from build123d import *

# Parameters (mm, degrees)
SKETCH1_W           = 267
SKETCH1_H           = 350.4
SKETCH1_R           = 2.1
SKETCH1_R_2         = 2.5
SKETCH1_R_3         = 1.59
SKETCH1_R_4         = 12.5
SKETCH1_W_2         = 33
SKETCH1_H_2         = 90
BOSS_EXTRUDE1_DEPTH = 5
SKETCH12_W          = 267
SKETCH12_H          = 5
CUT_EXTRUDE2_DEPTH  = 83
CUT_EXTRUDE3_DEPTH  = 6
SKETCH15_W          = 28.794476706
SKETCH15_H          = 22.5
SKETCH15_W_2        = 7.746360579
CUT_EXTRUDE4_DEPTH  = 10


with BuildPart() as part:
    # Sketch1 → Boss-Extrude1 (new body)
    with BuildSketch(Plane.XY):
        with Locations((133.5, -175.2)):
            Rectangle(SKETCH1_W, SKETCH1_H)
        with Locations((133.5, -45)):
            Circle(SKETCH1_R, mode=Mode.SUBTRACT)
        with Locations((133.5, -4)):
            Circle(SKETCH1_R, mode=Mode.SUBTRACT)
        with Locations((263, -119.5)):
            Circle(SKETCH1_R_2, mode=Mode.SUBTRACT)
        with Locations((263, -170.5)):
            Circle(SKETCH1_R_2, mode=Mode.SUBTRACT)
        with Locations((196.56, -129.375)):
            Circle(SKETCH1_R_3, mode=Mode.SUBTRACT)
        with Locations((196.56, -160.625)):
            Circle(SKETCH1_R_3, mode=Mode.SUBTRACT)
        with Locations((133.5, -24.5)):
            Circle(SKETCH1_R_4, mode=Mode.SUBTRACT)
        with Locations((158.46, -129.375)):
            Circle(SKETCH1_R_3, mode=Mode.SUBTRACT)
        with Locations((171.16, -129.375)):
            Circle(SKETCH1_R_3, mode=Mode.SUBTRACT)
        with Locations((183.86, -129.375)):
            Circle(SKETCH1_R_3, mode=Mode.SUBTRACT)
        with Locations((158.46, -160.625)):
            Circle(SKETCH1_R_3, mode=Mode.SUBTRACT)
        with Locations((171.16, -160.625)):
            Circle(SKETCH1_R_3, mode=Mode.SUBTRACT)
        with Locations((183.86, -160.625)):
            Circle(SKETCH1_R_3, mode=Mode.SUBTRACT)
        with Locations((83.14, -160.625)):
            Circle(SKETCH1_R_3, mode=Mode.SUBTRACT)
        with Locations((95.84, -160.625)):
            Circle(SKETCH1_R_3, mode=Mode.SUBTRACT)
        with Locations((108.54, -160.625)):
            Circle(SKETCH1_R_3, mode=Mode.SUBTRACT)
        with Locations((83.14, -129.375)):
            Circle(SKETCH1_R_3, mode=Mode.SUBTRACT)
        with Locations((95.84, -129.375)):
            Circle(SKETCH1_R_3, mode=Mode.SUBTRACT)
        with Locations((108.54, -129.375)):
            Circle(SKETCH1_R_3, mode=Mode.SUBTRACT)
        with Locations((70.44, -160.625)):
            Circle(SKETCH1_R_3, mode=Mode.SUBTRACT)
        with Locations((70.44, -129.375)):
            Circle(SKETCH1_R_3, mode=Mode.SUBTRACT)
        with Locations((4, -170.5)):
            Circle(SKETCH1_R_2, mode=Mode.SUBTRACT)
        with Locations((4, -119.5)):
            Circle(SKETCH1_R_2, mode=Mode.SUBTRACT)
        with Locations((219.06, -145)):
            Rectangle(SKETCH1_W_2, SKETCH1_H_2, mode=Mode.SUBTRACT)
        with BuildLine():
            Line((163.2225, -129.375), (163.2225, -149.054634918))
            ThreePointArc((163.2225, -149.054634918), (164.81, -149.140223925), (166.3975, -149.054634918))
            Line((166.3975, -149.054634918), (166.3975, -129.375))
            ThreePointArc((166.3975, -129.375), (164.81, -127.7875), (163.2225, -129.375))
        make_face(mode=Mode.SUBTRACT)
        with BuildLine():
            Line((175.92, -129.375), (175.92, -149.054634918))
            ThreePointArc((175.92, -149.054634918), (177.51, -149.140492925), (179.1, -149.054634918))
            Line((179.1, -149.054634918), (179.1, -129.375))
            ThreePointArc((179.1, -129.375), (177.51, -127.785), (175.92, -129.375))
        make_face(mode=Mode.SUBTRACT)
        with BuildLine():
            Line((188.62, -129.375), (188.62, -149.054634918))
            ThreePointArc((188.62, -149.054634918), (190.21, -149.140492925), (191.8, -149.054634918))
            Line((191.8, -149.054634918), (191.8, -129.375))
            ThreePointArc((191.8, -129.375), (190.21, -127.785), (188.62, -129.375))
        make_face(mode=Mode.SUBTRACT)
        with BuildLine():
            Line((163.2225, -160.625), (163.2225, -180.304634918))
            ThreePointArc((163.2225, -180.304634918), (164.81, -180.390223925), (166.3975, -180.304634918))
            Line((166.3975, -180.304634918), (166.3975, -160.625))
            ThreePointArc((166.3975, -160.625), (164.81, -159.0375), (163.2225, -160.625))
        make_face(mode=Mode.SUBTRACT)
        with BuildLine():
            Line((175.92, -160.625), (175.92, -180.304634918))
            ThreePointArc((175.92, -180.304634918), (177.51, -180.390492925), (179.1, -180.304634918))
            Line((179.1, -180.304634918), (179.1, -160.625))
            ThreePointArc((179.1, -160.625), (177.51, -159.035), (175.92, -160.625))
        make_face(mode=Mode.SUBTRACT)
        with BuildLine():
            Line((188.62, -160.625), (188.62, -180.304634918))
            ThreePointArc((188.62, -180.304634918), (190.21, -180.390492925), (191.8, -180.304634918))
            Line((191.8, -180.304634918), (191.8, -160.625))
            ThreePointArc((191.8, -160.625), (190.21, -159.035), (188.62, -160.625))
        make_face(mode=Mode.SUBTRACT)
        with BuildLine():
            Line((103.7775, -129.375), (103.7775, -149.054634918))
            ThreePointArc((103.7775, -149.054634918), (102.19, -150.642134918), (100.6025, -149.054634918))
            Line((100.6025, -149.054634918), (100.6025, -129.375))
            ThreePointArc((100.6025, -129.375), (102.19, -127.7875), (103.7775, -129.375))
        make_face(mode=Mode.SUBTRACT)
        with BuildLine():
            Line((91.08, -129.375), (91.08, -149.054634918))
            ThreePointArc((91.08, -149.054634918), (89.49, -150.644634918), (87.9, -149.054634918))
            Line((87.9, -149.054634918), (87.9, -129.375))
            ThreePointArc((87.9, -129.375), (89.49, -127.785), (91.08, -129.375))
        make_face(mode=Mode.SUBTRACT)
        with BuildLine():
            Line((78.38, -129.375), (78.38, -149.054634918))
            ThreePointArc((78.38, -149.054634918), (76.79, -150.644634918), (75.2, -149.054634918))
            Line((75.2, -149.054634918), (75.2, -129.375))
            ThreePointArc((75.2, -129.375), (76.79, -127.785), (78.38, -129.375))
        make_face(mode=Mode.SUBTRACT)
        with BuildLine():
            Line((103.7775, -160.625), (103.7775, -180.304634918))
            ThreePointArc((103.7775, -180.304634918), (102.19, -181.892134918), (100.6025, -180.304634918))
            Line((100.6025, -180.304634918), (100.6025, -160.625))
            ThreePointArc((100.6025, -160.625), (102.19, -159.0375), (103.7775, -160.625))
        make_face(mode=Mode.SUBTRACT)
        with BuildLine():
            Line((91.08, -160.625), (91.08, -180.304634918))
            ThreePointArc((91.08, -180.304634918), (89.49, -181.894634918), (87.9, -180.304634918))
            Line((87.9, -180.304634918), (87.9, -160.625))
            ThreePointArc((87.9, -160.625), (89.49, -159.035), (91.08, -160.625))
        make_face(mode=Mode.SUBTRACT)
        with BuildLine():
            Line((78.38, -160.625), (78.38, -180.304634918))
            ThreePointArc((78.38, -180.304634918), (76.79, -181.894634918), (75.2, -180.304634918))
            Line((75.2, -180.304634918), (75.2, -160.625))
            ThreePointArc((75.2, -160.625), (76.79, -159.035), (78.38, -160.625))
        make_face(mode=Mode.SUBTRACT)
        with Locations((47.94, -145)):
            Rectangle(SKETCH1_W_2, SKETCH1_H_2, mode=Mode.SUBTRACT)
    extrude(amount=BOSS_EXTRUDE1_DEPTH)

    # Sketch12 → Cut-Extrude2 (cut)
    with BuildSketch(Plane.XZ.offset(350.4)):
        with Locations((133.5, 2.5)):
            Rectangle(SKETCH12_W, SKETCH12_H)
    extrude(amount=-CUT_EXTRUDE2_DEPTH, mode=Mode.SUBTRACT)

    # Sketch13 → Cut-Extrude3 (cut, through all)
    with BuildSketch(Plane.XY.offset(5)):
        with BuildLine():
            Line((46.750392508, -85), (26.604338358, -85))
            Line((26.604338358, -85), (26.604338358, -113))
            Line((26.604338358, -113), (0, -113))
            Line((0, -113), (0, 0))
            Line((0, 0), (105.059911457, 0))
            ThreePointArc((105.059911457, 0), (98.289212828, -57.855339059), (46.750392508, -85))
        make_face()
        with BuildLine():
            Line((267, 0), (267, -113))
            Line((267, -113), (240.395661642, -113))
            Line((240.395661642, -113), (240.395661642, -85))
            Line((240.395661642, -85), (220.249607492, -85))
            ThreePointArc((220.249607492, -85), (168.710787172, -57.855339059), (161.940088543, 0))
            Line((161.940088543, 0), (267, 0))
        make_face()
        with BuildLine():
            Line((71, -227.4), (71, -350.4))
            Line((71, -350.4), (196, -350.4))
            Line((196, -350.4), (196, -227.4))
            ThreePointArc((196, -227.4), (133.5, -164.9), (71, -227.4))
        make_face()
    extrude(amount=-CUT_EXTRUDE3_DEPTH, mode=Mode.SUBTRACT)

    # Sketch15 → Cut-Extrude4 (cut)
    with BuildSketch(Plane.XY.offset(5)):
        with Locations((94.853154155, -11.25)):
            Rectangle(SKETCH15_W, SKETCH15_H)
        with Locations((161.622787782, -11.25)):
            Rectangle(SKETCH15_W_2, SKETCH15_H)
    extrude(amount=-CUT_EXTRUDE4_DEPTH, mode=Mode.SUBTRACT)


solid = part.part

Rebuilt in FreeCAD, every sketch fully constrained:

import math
import FreeCAD as App
import Part
import Sketcher

V = App.Vector
Q = App.Units.Quantity

doc = App.newDocument("Part")
body = doc.addObject("PartDesign::Body", "Body")

# Sketch on XY plane
sketch1 = body.newObject("Sketcher::SketchObject", "Sketch")
sketch1.AttachmentSupport = (doc.getObject("XY_Plane"), [""])
sketch1.MapMode = "FlatFace"
sketch1.addGeometry([
    Part.LineSegment(V(0, 0, 0), V(0, -350.4, 0)),  # 0
    Part.LineSegment(V(0, -350.4, 0), V(267, -350.4, 0)),  # 1
    Part.LineSegment(V(267, -350.4, 0), V(267, 0, 0)),  # 2
    Part.LineSegment(V(267, 0, 0), V(0, 0, 0)),  # 3
    Part.Circle(V(4, -170.5, 0), V(0, 0, 1), 2.5),  # 4
    Part.LineSegment(V(64.4, -190, 0), V(31.4, -190, 0)),  # 5
    Part.LineSegment(V(31.4, -190, 0), V(31.4, -100, 0)),  # 6
    Part.LineSegment(V(31.4, -100, 0), V(64.4, -100, 0)),  # 7
    Part.LineSegment(V(64.4, -100, 0), V(64.4, -190, 0)),  # 8
    Part.ArcOfCircle(Part.Circle(V(76.8, -160.6, 0), V(0, 0, 1), 1.6), math.radians(0), math.radians(180)),  # 9
    Part.LineSegment(V(78.4, -160.6, 0), V(78.4, -180.3, 0)),  # 10
    Part.ArcOfCircle(Part.Circle(V(76.8, -180.3, 0), V(0, 0, 1), 1.6), math.radians(180), math.radians(360)),  # 11
    Part.LineSegment(V(75.2, -180.3, 0), V(75.2, -160.6, 0)),  # 12
    Part.ArcOfCircle(Part.Circle(V(89.5, -160.6, 0), V(0, 0, 1), 1.6), math.radians(0), math.radians(180)),  # 13
    Part.LineSegment(V(91.1, -160.6, 0), V(91.1, -180.3, 0)),  # 14
    Part.ArcOfCircle(Part.Circle(V(89.5, -180.3, 0), V(0, 0, 1), 1.6), math.radians(180), math.radians(360)),  # 15
    Part.LineSegment(V(87.9, -180.3, 0), V(87.9, -160.6, 0)),  # 16
    Part.ArcOfCircle(Part.Circle(V(102.2, -160.6, 0), V(0, 0, 1), 1.6), math.radians(0), math.radians(180)),  # 17
    Part.LineSegment(V(103.8, -160.6, 0), V(103.8, -180.3, 0)),  # 18
    Part.ArcOfCircle(Part.Circle(V(102.2, -180.3, 0), V(0, 0, 1), 1.6), math.radians(180), math.radians(360)),  # 19
    Part.LineSegment(V(100.6, -180.3, 0), V(100.6, -160.6, 0)),  # 20
    Part.Circle(V(70.4, -160.6, 0), V(0, 0, 1), 1.6),  # 21
    Part.Circle(V(83.1, -160.6, 0), V(0, 0, 1), 1.6),  # 22
    Part.Circle(V(95.8, -160.6, 0), V(0, 0, 1), 1.6),  # 23
    Part.Circle(V(108.5, -160.6, 0), V(0, 0, 1), 1.6),  # 24
    Part.Circle(V(4, -119.5, 0), V(0, 0, 1), 2.5),  # 25
    Part.ArcOfCircle(Part.Circle(V(76.8, -129.4, 0), V(0, 0, 1), 1.6), math.radians(0), math.radians(180)),  # 26
    Part.LineSegment(V(78.4, -129.4, 0), V(78.4, -149.1, 0)),  # 27
    Part.ArcOfCircle(Part.Circle(V(76.8, -149.1, 0), V(0, 0, 1), 1.6), math.radians(180), math.radians(360)),  # 28
    Part.LineSegment(V(75.2, -149.1, 0), V(75.2, -129.4, 0)),  # 29
    Part.ArcOfCircle(Part.Circle(V(89.5, -129.4, 0), V(0, 0, 1), 1.6), math.radians(0), math.radians(180)),  # 30
    Part.LineSegment(V(91.1, -129.4, 0), V(91.1, -149.1, 0)),  # 31
    Part.ArcOfCircle(Part.Circle(V(89.5, -149.1, 0), V(0, 0, 1), 1.6), math.radians(180), math.radians(360)),  # 32
    Part.LineSegment(V(87.9, -149.1, 0), V(87.9, -129.4, 0)),  # 33
    Part.Circle(V(70.4, -129.4, 0), V(0, 0, 1), 1.6),  # 34
    Part.Circle(V(83.1, -129.4, 0), V(0, 0, 1), 1.6),  # 35
    Part.Circle(V(95.8, -129.4, 0), V(0, 0, 1), 1.6),  # 36
    Part.ArcOfCircle(Part.Circle(V(102.2, -129.4, 0), V(0, 0, 1), 1.6), math.radians(0), math.radians(180)),  # 37
    Part.LineSegment(V(103.8, -129.4, 0), V(103.8, -149.1, 0)),  # 38
    Part.ArcOfCircle(Part.Circle(V(102.2, -149.1, 0), V(0, 0, 1), 1.6), math.radians(180), math.radians(360)),  # 39
    Part.LineSegment(V(100.6, -149.1, 0), V(100.6, -129.4, 0)),  # 40
    Part.Circle(V(108.5, -129.4, 0), V(0, 0, 1), 1.6),  # 41
    Part.LineSegment(V(163.2, -180.3, 0), V(163.2, -160.6, 0)),  # 42
    Part.ArcOfCircle(Part.Circle(V(164.8, -160.6, 0), V(0, 0, 1), 1.6), math.radians(0), math.radians(180)),  # 43
    Part.LineSegment(V(166.4, -160.6, 0), V(166.4, -180.3, 0)),  # 44
    Part.ArcOfCircle(Part.Circle(V(164.8, -165.6, 0), V(0, 0, 1), 14.8), math.radians(-96.17), math.radians(-83.83)),  # 45
    Part.LineSegment(V(175.9, -180.3, 0), V(175.9, -160.6, 0)),  # 46
    Part.ArcOfCircle(Part.Circle(V(177.5, -160.6, 0), V(0, 0, 1), 1.6), math.radians(0), math.radians(180)),  # 47
    Part.LineSegment(V(179.1, -160.6, 0), V(179.1, -180.3, 0)),  # 48
    Part.ArcOfCircle(Part.Circle(V(177.5, -165.6, 0), V(0, 0, 1), 14.8), math.radians(-96.18), math.radians(-83.82)),  # 49
    Part.LineSegment(V(188.6, -180.3, 0), V(188.6, -160.6, 0)),  # 50
    Part.ArcOfCircle(Part.Circle(V(190.2, -160.6, 0), V(0, 0, 1), 1.6), math.radians(0), math.radians(180)),  # 51
    Part.LineSegment(V(191.8, -160.6, 0), V(191.8, -180.3, 0)),  # 52
    Part.ArcOfCircle(Part.Circle(V(190.2, -165.6, 0), V(0, 0, 1), 14.8), math.radians(-96.18), math.radians(-83.82)),  # 53
    Part.Circle(V(158.5, -160.6, 0), V(0, 0, 1), 1.6),  # 54
    Part.Circle(V(171.2, -160.6, 0), V(0, 0, 1), 1.6),  # 55
    Part.Circle(V(183.9, -160.6, 0), V(0, 0, 1), 1.6),  # 56
    Part.Circle(V(196.6, -160.6, 0), V(0, 0, 1), 1.6),  # 57
    Part.Circle(V(263, -170.5, 0), V(0, 0, 1), 2.5),  # 58
    Part.LineSegment(V(235.6, -190, 0), V(202.6, -190, 0)),  # 59
    Part.LineSegment(V(202.6, -190, 0), V(202.6, -100, 0)),  # 60
    Part.LineSegment(V(202.6, -100, 0), V(235.6, -100, 0)),  # 61
    Part.LineSegment(V(235.6, -100, 0), V(235.6, -190, 0)),  # 62
    Part.LineSegment(V(163.2, -149.1, 0), V(163.2, -129.4, 0)),  # 63
    Part.ArcOfCircle(Part.Circle(V(164.8, -129.4, 0), V(0, 0, 1), 1.6), math.radians(0), math.radians(180)),  # 64
    Part.LineSegment(V(166.4, -129.4, 0), V(166.4, -149.1, 0)),  # 65
    Part.ArcOfCircle(Part.Circle(V(164.8, -134.4, 0), V(0, 0, 1), 14.8), math.radians(-96.17), math.radians(-83.83)),  # 66
    Part.Circle(V(158.5, -129.4, 0), V(0, 0, 1), 1.6),  # 67
    Part.LineSegment(V(175.9, -149.1, 0), V(175.9, -129.4, 0)),  # 68
    Part.ArcOfCircle(Part.Circle(V(177.5, -129.4, 0), V(0, 0, 1), 1.6), math.radians(0), math.radians(180)),  # 69
    Part.LineSegment(V(179.1, -129.4, 0), V(179.1, -149.1, 0)),  # 70
    Part.ArcOfCircle(Part.Circle(V(177.5, -134.4, 0), V(0, 0, 1), 14.8), math.radians(-96.18), math.radians(-83.82)),  # 71
    Part.LineSegment(V(188.6, -149.1, 0), V(188.6, -129.4, 0)),  # 72
    Part.ArcOfCircle(Part.Circle(V(190.2, -129.4, 0), V(0, 0, 1), 1.6), math.radians(0), math.radians(180)),  # 73
    Part.LineSegment(V(191.8, -129.4, 0), V(191.8, -149.1, 0)),  # 74
    Part.ArcOfCircle(Part.Circle(V(190.2, -134.4, 0), V(0, 0, 1), 14.8), math.radians(-96.18), math.radians(-83.82)),  # 75
    Part.Circle(V(171.2, -129.4, 0), V(0, 0, 1), 1.6),  # 76
    Part.Circle(V(183.9, -129.4, 0), V(0, 0, 1), 1.6),  # 77
    Part.Circle(V(196.6, -129.4, 0), V(0, 0, 1), 1.6),  # 78
    Part.Circle(V(263, -119.5, 0), V(0, 0, 1), 2.5),  # 79
    Part.Circle(V(133.5, -45, 0), V(0, 0, 1), 2.1),  # 80
    Part.Circle(V(133.5, -24.5, 0), V(0, 0, 1), 12.5),  # 81
    Part.Circle(V(133.5, -4, 0), V(0, 0, 1), 2.1),  # 82
], False)
sketch1.addConstraint([
    Sketcher.Constraint("Coincident", 0, 2, 1, 1),
    Sketcher.Constraint("Coincident", 1, 2, 2, 1),
    Sketcher.Constraint("Coincident", 2, 2, 3, 1),
    Sketcher.Constraint("Coincident", 3, 2, 0, 1),
    Sketcher.Constraint("Coincident", 5, 2, 6, 1),
    Sketcher.Constraint("Coincident", 6, 2, 7, 1),
    Sketcher.Constraint("Coincident", 7, 2, 8, 1),
    Sketcher.Constraint("Coincident", 8, 2, 5, 1),
    Sketcher.Constraint("Tangent", 9, 1, 10, 1),
    Sketcher.Constraint("Tangent", 10, 2, 11, 2),
    Sketcher.Constraint("Tangent", 11, 1, 12, 1),
    Sketcher.Constraint("Tangent", 12, 2, 9, 2),
    Sketcher.Constraint("Tangent", 13, 1, 14, 1),
    Sketcher.Constraint("Tangent", 14, 2, 15, 2),
    Sketcher.Constraint("Tangent", 15, 1, 16, 1),
    Sketcher.Constraint("Tangent", 16, 2, 13, 2),
    Sketcher.Constraint("Tangent", 17, 1, 18, 1),
    Sketcher.Constraint("Tangent", 18, 2, 19, 2),
    Sketcher.Constraint("Tangent", 19, 1, 20, 1),
    Sketcher.Constraint("Tangent", 20, 2, 17, 2),
    Sketcher.Constraint("Tangent", 26, 1, 27, 1),
    Sketcher.Constraint("Tangent", 27, 2, 28, 2),
    Sketcher.Constraint("Tangent", 28, 1, 29, 1),
    Sketcher.Constraint("Tangent", 29, 2, 26, 2),
    Sketcher.Constraint("Tangent", 30, 1, 31, 1),
    Sketcher.Constraint("Tangent", 31, 2, 32, 2),
    Sketcher.Constraint("Tangent", 32, 1, 33, 1),
    Sketcher.Constraint("Tangent", 33, 2, 30, 2),
    Sketcher.Constraint("Tangent", 37, 1, 38, 1),
    Sketcher.Constraint("Tangent", 38, 2, 39, 2),
    Sketcher.Constraint("Tangent", 39, 1, 40, 1),
    Sketcher.Constraint("Tangent", 40, 2, 37, 2),
    Sketcher.Constraint("Tangent", 42, 2, 43, 2),
    Sketcher.Constraint("Tangent", 43, 1, 44, 1),
    Sketcher.Constraint("Coincident", 44, 2, 45, 2),
    Sketcher.Constraint("Coincident", 45, 1, 42, 1),
    Sketcher.Constraint("Tangent", 46, 2, 47, 2),
    Sketcher.Constraint("Tangent", 47, 1, 48, 1),
    Sketcher.Constraint("Coincident", 48, 2, 49, 2),
    Sketcher.Constraint("Coincident", 49, 1, 46, 1),
    Sketcher.Constraint("Tangent", 50, 2, 51, 2),
    Sketcher.Constraint("Tangent", 51, 1, 52, 1),
    Sketcher.Constraint("Coincident", 52, 2, 53, 2),
    Sketcher.Constraint("Coincident", 53, 1, 50, 1),
    Sketcher.Constraint("Coincident", 59, 2, 60, 1),
    Sketcher.Constraint("Coincident", 60, 2, 61, 1),
    Sketcher.Constraint("Coincident", 61, 2, 62, 1),
    Sketcher.Constraint("Coincident", 62, 2, 59, 1),
    Sketcher.Constraint("Tangent", 63, 2, 64, 2),
    Sketcher.Constraint("Tangent", 64, 1, 65, 1),
    Sketcher.Constraint("Coincident", 65, 2, 66, 2),
    Sketcher.Constraint("Coincident", 66, 1, 63, 1),
    Sketcher.Constraint("Tangent", 68, 2, 69, 2),
    Sketcher.Constraint("Tangent", 69, 1, 70, 1),
    Sketcher.Constraint("Coincident", 70, 2, 71, 2),
    Sketcher.Constraint("Coincident", 71, 1, 68, 1),
    Sketcher.Constraint("Tangent", 72, 2, 73, 2),
    Sketcher.Constraint("Tangent", 73, 1, 74, 1),
    Sketcher.Constraint("Coincident", 74, 2, 75, 2),
    Sketcher.Constraint("Coincident", 75, 1, 72, 1),
    Sketcher.Constraint("Vertical", 0),
    Sketcher.Constraint("Horizontal", 1),
    Sketcher.Constraint("Vertical", 2),
    Sketcher.Constraint("Horizontal", 3),
    Sketcher.Constraint("Horizontal", 5),
    Sketcher.Constraint("Vertical", 6),
    Sketcher.Constraint("Horizontal", 7),
    Sketcher.Constraint("Vertical", 8),
    Sketcher.Constraint("Vertical", 10),
    Sketcher.Constraint("Vertical", 12),
    Sketcher.Constraint("Vertical", 14),
    Sketcher.Constraint("Vertical", 16),
    Sketcher.Constraint("Vertical", 18),
    Sketcher.Constraint("Vertical", 20),
    Sketcher.Constraint("Vertical", 27),
    Sketcher.Constraint("Vertical", 29),
    Sketcher.Constraint("Vertical", 31),
    Sketcher.Constraint("Vertical", 33),
    Sketcher.Constraint("Vertical", 38),
    Sketcher.Constraint("Vertical", 40),
    Sketcher.Constraint("Vertical", 42),
    Sketcher.Constraint("Vertical", 44),
    Sketcher.Constraint("Vertical", 46),
    Sketcher.Constraint("Vertical", 48),
    Sketcher.Constraint("Vertical", 50),
    Sketcher.Constraint("Vertical", 52),
    Sketcher.Constraint("Horizontal", 59),
    Sketcher.Constraint("Vertical", 60),
    Sketcher.Constraint("Horizontal", 61),
    Sketcher.Constraint("Vertical", 62),
    Sketcher.Constraint("Vertical", 63),
    Sketcher.Constraint("Vertical", 65),
    Sketcher.Constraint("Vertical", 68),
    Sketcher.Constraint("Vertical", 70),
    Sketcher.Constraint("Vertical", 72),
    Sketcher.Constraint("Vertical", 74),
    Sketcher.Constraint("Coincident", 3, 2, -1, 1),
    Sketcher.Constraint("Equal", 11, 13),
    Sketcher.Constraint("Equal", 15, 21),
    Sketcher.Constraint("Equal", 21, 22),
    Sketcher.Constraint("Equal", 22, 23),
    Sketcher.Constraint("Equal", 23, 24),
    Sketcher.Constraint("Equal", 4, 25),
    Sketcher.Constraint("Equal", 24, 26),
    Sketcher.Constraint("Equal", 28, 30),
    Sketcher.Constraint("Equal", 32, 34),
    Sketcher.Constraint("Equal", 34, 35),
    Sketcher.Constraint("Equal", 35, 36),
    Sketcher.Constraint("Equal", 19, 37),
    Sketcher.Constraint("Equal", 36, 41),
    Sketcher.Constraint("Equal", 39, 43),
    Sketcher.Constraint("Equal", 41, 47),
    Sketcher.Constraint("Equal", 47, 51),
    Sketcher.Constraint("Equal", 49, 53),
    Sketcher.Constraint("Equal", 51, 54),
    Sketcher.Constraint("Equal", 54, 55),
    Sketcher.Constraint("Equal", 55, 56),
    Sketcher.Constraint("Equal", 56, 57),
    Sketcher.Constraint("Equal", 25, 58),
    Sketcher.Constraint("Equal", 43, 64),
    Sketcher.Constraint("Equal", 45, 66),
    Sketcher.Constraint("Equal", 57, 67),
    Sketcher.Constraint("Equal", 67, 69),
    Sketcher.Constraint("Equal", 53, 71),
    Sketcher.Constraint("Equal", 69, 73),
    Sketcher.Constraint("Equal", 71, 75),
    Sketcher.Constraint("Equal", 73, 76),
    Sketcher.Constraint("Equal", 76, 77),
    Sketcher.Constraint("Equal", 77, 78),
    Sketcher.Constraint("Equal", 58, 79),
    Sketcher.Constraint("Equal", 80, 82),
    Sketcher.Constraint("Horizontal", 9, 3, 13, 3),
    Sketcher.Constraint("Horizontal", 11, 3, 15, 3),
    Sketcher.Constraint("Horizontal", 13, 3, 17, 3),
    Sketcher.Constraint("Horizontal", 15, 3, 19, 3),
    Sketcher.Constraint("Horizontal", 17, 3, 21, 3),
    Sketcher.Constraint("Horizontal", 21, 3, 22, 3),
    Sketcher.Constraint("Horizontal", 22, 3, 23, 3),
    Sketcher.Constraint("Horizontal", 23, 3, 24, 3),
    Sketcher.Constraint("Horizontal", 26, 3, 30, 3),
    Sketcher.Constraint("Horizontal", 28, 3, 32, 3),
    Sketcher.Constraint("Horizontal", 30, 3, 34, 3),
    Sketcher.Constraint("Horizontal", 34, 3, 35, 3),
    Sketcher.Constraint("Horizontal", 35, 3, 36, 3),
    Sketcher.Constraint("Horizontal", 36, 3, 37, 3),
    Sketcher.Constraint("Horizontal", 32, 3, 39, 3),
    Sketcher.Constraint("Horizontal", 37, 3, 41, 3),
    Sketcher.Constraint("Horizontal", 24, 3, 43, 3),
    Sketcher.Constraint("Horizontal", 43, 3, 47, 3),
    Sketcher.Constraint("Horizontal", 45, 3, 49, 3),
    Sketcher.Constraint("Horizontal", 47, 3, 51, 3),
    Sketcher.Constraint("Horizontal", 49, 3, 53, 3),
    Sketcher.Constraint("Horizontal", 51, 3, 54, 3),
    Sketcher.Constraint("Horizontal", 54, 3, 55, 3),
    Sketcher.Constraint("Horizontal", 55, 3, 56, 3),
    Sketcher.Constraint("Horizontal", 56, 3, 57, 3),
    Sketcher.Constraint("Horizontal", 4, 3, 58, 3),
    Sketcher.Constraint("Horizontal", 41, 3, 64, 3),
    Sketcher.Constraint("Horizontal", 64, 3, 67, 3),
    Sketcher.Constraint("Horizontal", 67, 3, 69, 3),
    Sketcher.Constraint("Horizontal", 66, 3, 71, 3),
    Sketcher.Constraint("Horizontal", 69, 3, 73, 3),
    Sketcher.Constraint("Horizontal", 71, 3, 75, 3),
    Sketcher.Constraint("Horizontal", 73, 3, 76, 3),
    Sketcher.Constraint("Horizontal", 76, 3, 77, 3),
    Sketcher.Constraint("Horizontal", 77, 3, 78, 3),
    Sketcher.Constraint("Horizontal", 25, 3, 79, 3),
    Sketcher.Constraint("Horizontal", 19, 1, 44, 2),
    Sketcher.Constraint("Horizontal", 44, 2, 45, 1),
    Sketcher.Constraint("Horizontal", 45, 1, 48, 2),
    Sketcher.Constraint("Horizontal", 48, 2, 49, 1),
    Sketcher.Constraint("Horizontal", 49, 1, 52, 2),
    Sketcher.Constraint("Horizontal", 8, 2, 59, 2),
    Sketcher.Constraint("Horizontal", 7, 2, 60, 2),
    Sketcher.Constraint("Horizontal", 39, 1, 65, 2),
    Sketcher.Constraint("Horizontal", 65, 2, 66, 1),
    Sketcher.Constraint("Horizontal", 66, 1, 70, 2),
    Sketcher.Constraint("Horizontal", 71, 1, 74, 2),
    Sketcher.Constraint("Vertical", 4, 3, 25, 3),
    Sketcher.Constraint("Vertical", 11, 3, 26, 3),
    Sketcher.Constraint("Vertical", 15, 3, 30, 3),
    Sketcher.Constraint("Vertical", 21, 3, 34, 3),
    Sketcher.Constraint("Vertical", 22, 3, 35, 3),
    Sketcher.Constraint("Vertical", 23, 3, 36, 3),
    Sketcher.Constraint("Vertical", 19, 3, 37, 3),
    Sketcher.Constraint("Vertical", 24, 3, 41, 3),
    Sketcher.Constraint("Vertical", 45, 3, 64, 3),
    Sketcher.Constraint("Vertical", 54, 3, 67, 3),
    Sketcher.Constraint("Vertical", 49, 3, 69, 3),
    Sketcher.Constraint("Vertical", 53, 3, 73, 3),
    Sketcher.Constraint("Vertical", 55, 3, 76, 3),
    Sketcher.Constraint("Vertical", 56, 3, 77, 3),
    Sketcher.Constraint("Vertical", 57, 3, 78, 3),
    Sketcher.Constraint("Vertical", 58, 3, 79, 3),
    Sketcher.Constraint("Vertical", 80, 3, 81, 3),
    Sketcher.Constraint("Vertical", 81, 3, 82, 3),
    Sketcher.Constraint("Equal", 7, 59),
    Sketcher.Constraint("Equal", 20, 27),
    Sketcher.Constraint("Diameter", 4, Q("5 mm")),
    Sketcher.Constraint("Diameter", 81, Q("25 mm")),
    Sketcher.Constraint("Diameter", 80, Q("4.2 mm")),
    Sketcher.Constraint("Diameter", 21, Q("3.18 mm")),
    Sketcher.Constraint("DistanceX", 1, 1, 1, 2, Q("267 mm")),
    Sketcher.Constraint("DistanceX", 5, 2, 5, 1, Q("33 mm")),
    Sketcher.Constraint("DistanceY", 6, 1, 6, 2, Q("90 mm")),
    Sketcher.Constraint("DistanceY", 0, 2, 0, 1, Q("350.4 mm")),
    Sketcher.Constraint("DistanceX", -1, 1, 4, 3, Q("4 mm")),
    Sketcher.Constraint("DistanceX", -1, 1, 58, 3, Q("263 mm")),
    Sketcher.Constraint("DistanceY", 80, 3, -1, 1, Q("45 mm")),
    Sketcher.Constraint("DistanceY", 82, 3, -1, 1, Q("4 mm")),
    Sketcher.Constraint("DistanceY", 5, 2, -1, 1, Q("190 mm")),
    Sketcher.Constraint("DistanceY", 4, 3, -1, 1, Q("170.5 mm")),
    Sketcher.Constraint("DistanceY", 25, 3, -1, 1, Q("119.5 mm")),
    Sketcher.Constraint("DistanceX", -1, 1, 80, 3, Q("133.5 mm")),
    Sketcher.Constraint("DistanceY", 81, 3, -1, 1, Q("24.5 mm")),
    Sketcher.Constraint("DistanceX", -1, 1, 11, 1, Q("75.2 mm")),
    Sketcher.Constraint("DistanceX", -1, 1, 15, 1, Q("87.9 mm")),
    Sketcher.Constraint("DistanceX", -1, 1, 47, 1, Q("179.1 mm")),
    Sketcher.Constraint("DistanceX", -1, 1, 51, 1, Q("191.8 mm")),
    Sketcher.Constraint("Radius", 17, Q("1.5875 mm")),
    Sketcher.Constraint("DistanceX", -1, 1, 17, 3, Q("102.19 mm")),
    Sketcher.Constraint("DistanceX", -1, 1, 21, 3, Q("70.44 mm")),
    Sketcher.Constraint("DistanceX", -1, 1, 22, 3, Q("83.14 mm")),
    Sketcher.Constraint("DistanceX", -1, 1, 23, 3, Q("95.84 mm")),
    Sketcher.Constraint("DistanceX", -1, 1, 24, 3, Q("108.54 mm")),
    Sketcher.Constraint("DistanceX", -1, 1, 43, 3, Q("164.81 mm")),
    Sketcher.Constraint("DistanceX", -1, 1, 54, 3, Q("158.46 mm")),
    Sketcher.Constraint("DistanceX", -1, 1, 55, 3, Q("171.16 mm")),
    Sketcher.Constraint("DistanceX", -1, 1, 56, 3, Q("183.86 mm")),
    Sketcher.Constraint("DistanceX", -1, 1, 57, 3, Q("196.56 mm")),
    Sketcher.Constraint("DistanceX", -1, 1, 5, 2, Q("31.44 mm")),
    Sketcher.Constraint("DistanceX", -1, 1, 59, 2, Q("202.56 mm")),
    Sketcher.Constraint("DistanceY", 9, 3, -1, 1, Q("160.625 mm")),
    Sketcher.Constraint("DistanceY", 26, 3, -1, 1, Q("129.375 mm")),
    Sketcher.Constraint("DistanceY", 45, 3, -1, 1, Q("165.625 mm")),
    Sketcher.Constraint("Radius", 45, Q("14.765224 mm")),
])
pad1 = body.newObject("PartDesign::Pad", "Pad")
pad1.Profile = sketch1
pad1.Length = 5

# Sketch on XZ plane
sketch2 = body.newObject("Sketcher::SketchObject", "Sketch001")
sketch2.AttachmentSupport = (doc.getObject("XZ_Plane"), [""])
sketch2.MapMode = "FlatFace"
sketch2.AttachmentOffset = App.Placement(V(0, 0, 350.4), App.Rotation())
sketch2.addGeometry([
    Part.LineSegment(V(0, 5, 0), V(0, 0, 0)),
    Part.LineSegment(V(0, 0, 0), V(267, 0, 0)),
    Part.LineSegment(V(267, 0, 0), V(267, 5, 0)),
    Part.LineSegment(V(267, 5, 0), V(0, 5, 0)),
], False)
sketch2.addConstraint([
    Sketcher.Constraint("Coincident", 0, 2, 1, 1),
    Sketcher.Constraint("Coincident", 1, 2, 2, 1),
    Sketcher.Constraint("Coincident", 2, 2, 3, 1),
    Sketcher.Constraint("Coincident", 3, 2, 0, 1),
    Sketcher.Constraint("Vertical", 0),
    Sketcher.Constraint("Horizontal", 1),
    Sketcher.Constraint("Vertical", 2),
    Sketcher.Constraint("Horizontal", 3),
    Sketcher.Constraint("Coincident", 0, 2, -1, 1),
    Sketcher.Constraint("DistanceX", 1, 1, 1, 2, Q("267 mm")),
    Sketcher.Constraint("DistanceY", 0, 2, 0, 1, Q("5 mm")),
])
pocket1 = body.newObject("PartDesign::Pocket", "Pocket")
pocket1.Profile = sketch2
pocket1.Length = 83

# Sketch on XY plane
sketch3 = body.newObject("Sketcher::SketchObject", "Sketch002")
sketch3.AttachmentSupport = (doc.getObject("XY_Plane"), [""])
sketch3.MapMode = "FlatFace"
sketch3.AttachmentOffset = App.Placement(V(0, 0, 5), App.Rotation())
sketch3.addGeometry([
    Part.LineSegment(V(27, -85, 0), V(47, -85, 0)),  # 0
    Part.ArcOfCircle(Part.Circle(V(47, -22, 0), V(0, 0, 1), 63), math.radians(-90), math.radians(21)),  # 1
    Part.LineSegment(V(105, 0, 0), V(0, 0, 0)),  # 2
    Part.LineSegment(V(0, 0, 0), V(0, -113, 0)),  # 3
    Part.LineSegment(V(0, -113, 0), V(27, -113, 0)),  # 4
    Part.LineSegment(V(27, -113, 0), V(27, -85, 0)),  # 5
    Part.LineSegment(V(267, -113, 0), V(267, 0, 0)),  # 6
    Part.LineSegment(V(267, 0, 0), V(162, 0, 0)),  # 7
    Part.ArcOfCircle(Part.Circle(V(220, -22, 0), V(0, 0, 1), 63), math.radians(159), math.radians(270)),  # 8
    Part.LineSegment(V(220, -85, 0), V(240, -85, 0)),  # 9
    Part.LineSegment(V(240, -85, 0), V(240, -113, 0)),  # 10
    Part.LineSegment(V(240, -113, 0), V(267, -113, 0)),  # 11
    Part.LineSegment(V(71, -227, 0), V(71, -350, 0)),  # 12
    Part.LineSegment(V(71, -350, 0), V(196, -350, 0)),  # 13
    Part.LineSegment(V(196, -350, 0), V(196, -227, 0)),  # 14
    Part.ArcOfCircle(Part.Circle(V(134, -227, 0), V(0, 0, 1), 62), math.radians(0), math.radians(180)),  # 15
], False)
sketch3.addConstraint([
    Sketcher.Constraint("Tangent", 0, 2, 1, 1),
    Sketcher.Constraint("Coincident", 1, 2, 2, 1),
    Sketcher.Constraint("Coincident", 2, 2, 3, 1),
    Sketcher.Constraint("Coincident", 3, 2, 4, 1),
    Sketcher.Constraint("Coincident", 4, 2, 5, 1),
    Sketcher.Constraint("Coincident", 5, 2, 0, 1),
    Sketcher.Constraint("Coincident", 6, 2, 7, 1),
    Sketcher.Constraint("Coincident", 7, 2, 8, 1),
    Sketcher.Constraint("Tangent", 8, 2, 9, 1),
    Sketcher.Constraint("Coincident", 9, 2, 10, 1),
    Sketcher.Constraint("Coincident", 10, 2, 11, 1),
    Sketcher.Constraint("Coincident", 11, 2, 6, 1),
    Sketcher.Constraint("Coincident", 12, 2, 13, 1),
    Sketcher.Constraint("Coincident", 13, 2, 14, 1),
    Sketcher.Constraint("Tangent", 14, 2, 15, 1),
    Sketcher.Constraint("Tangent", 15, 2, 12, 1),
    Sketcher.Constraint("Horizontal", 0),
    Sketcher.Constraint("Horizontal", 2),
    Sketcher.Constraint("Vertical", 3),
    Sketcher.Constraint("Horizontal", 4),
    Sketcher.Constraint("Vertical", 5),
    Sketcher.Constraint("Vertical", 6),
    Sketcher.Constraint("Horizontal", 7),
    Sketcher.Constraint("Horizontal", 9),
    Sketcher.Constraint("Vertical", 10),
    Sketcher.Constraint("Horizontal", 11),
    Sketcher.Constraint("Vertical", 12),
    Sketcher.Constraint("Horizontal", 13),
    Sketcher.Constraint("Vertical", 14),
    Sketcher.Constraint("Coincident", 2, 2, -1, 1),
    Sketcher.Constraint("Equal", 1, 8),
    Sketcher.Constraint("Equal", 8, 15),
    Sketcher.Constraint("PointOnObject", 6, 2, -1),
    Sketcher.Constraint("Horizontal", 1, 3, 8, 3),
    Sketcher.Constraint("Horizontal", 4, 2, 10, 2),
    Sketcher.Constraint("Equal", 2, 7),
    Sketcher.Constraint("Equal", 0, 9),
    Sketcher.Constraint("Radius", 1, Q("62.5 mm")),
    Sketcher.Constraint("DistanceY", 3, 2, 3, 1, Q("113 mm")),
    Sketcher.Constraint("DistanceY", 5, 1, 5, 2, Q("28 mm")),
    Sketcher.Constraint("DistanceY", 12, 2, 12, 1, Q("123 mm")),
    Sketcher.Constraint("DistanceX", -1, 1, 6, 2, Q("267 mm")),
    Sketcher.Constraint("DistanceX", -1, 1, 12, 2, Q("71 mm")),
    Sketcher.Constraint("DistanceY", 15, 3, -1, 1, Q("227.4 mm")),
    Sketcher.Constraint("DistanceX", 2, 2, 2, 1, Q("105.059911 mm")),
    Sketcher.Constraint("DistanceX", 4, 1, 4, 2, Q("26.604338 mm")),
])
pocket2 = body.newObject("PartDesign::Pocket", "Pocket001")
pocket2.Profile = sketch3
pocket2.Type = "ThroughAll"

# Sketch on XY plane
sketch4 = body.newObject("Sketcher::SketchObject", "Sketch003")
sketch4.AttachmentSupport = (doc.getObject("XY_Plane"), [""])
sketch4.MapMode = "FlatFace"
sketch4.AttachmentOffset = App.Placement(V(0, 0, 5), App.Rotation())
sketch4.addGeometry([
    Part.LineSegment(V(80, 0, 0), V(80, -22, 0)),  # 0
    Part.LineSegment(V(80, -22, 0), V(109, -22, 0)),  # 1
    Part.LineSegment(V(109, -22, 0), V(109, 0, 0)),  # 2
    Part.LineSegment(V(109, 0, 0), V(80, 0, 0)),  # 3
    Part.LineSegment(V(158, 0, 0), V(158, -22, 0)),  # 4
    Part.LineSegment(V(158, -22, 0), V(165, -22, 0)),  # 5
    Part.LineSegment(V(165, -22, 0), V(165, 0, 0)),  # 6
    Part.LineSegment(V(165, 0, 0), V(158, 0, 0)),  # 7
], False)
sketch4.addConstraint([
    Sketcher.Constraint("Coincident", 0, 2, 1, 1),
    Sketcher.Constraint("Coincident", 1, 2, 2, 1),
    Sketcher.Constraint("Coincident", 2, 2, 3, 1),
    Sketcher.Constraint("Coincident", 3, 2, 0, 1),
    Sketcher.Constraint("Coincident", 4, 2, 5, 1),
    Sketcher.Constraint("Coincident", 5, 2, 6, 1),
    Sketcher.Constraint("Coincident", 6, 2, 7, 1),
    Sketcher.Constraint("Coincident", 7, 2, 4, 1),
    Sketcher.Constraint("Vertical", 0),
    Sketcher.Constraint("Horizontal", 1),
    Sketcher.Constraint("Vertical", 2),
    Sketcher.Constraint("Horizontal", 3),
    Sketcher.Constraint("Vertical", 4),
    Sketcher.Constraint("Horizontal", 5),
    Sketcher.Constraint("Vertical", 6),
    Sketcher.Constraint("Horizontal", 7),
    Sketcher.Constraint("PointOnObject", 2, 2, -1),
    Sketcher.Constraint("PointOnObject", 6, 2, -1),
    Sketcher.Constraint("Horizontal", 1, 2, 4, 2),
    Sketcher.Constraint("DistanceY", 0, 2, 0, 1, Q("22.5 mm")),
    Sketcher.Constraint("DistanceX", 5, 1, 5, 2, Q("7.746361 mm")),
    Sketcher.Constraint("DistanceX", 1, 1, 1, 2, Q("28.794477 mm")),
    Sketcher.Constraint("DistanceX", -1, 1, 5, 2, Q("165.495968 mm")),
    Sketcher.Constraint("DistanceX", 0, 2, 4, 2, Q("77.293692 mm")),
])
pocket3 = body.newObject("PartDesign::Pocket", "Pocket002")
pocket3.Profile = sketch4
pocket3.Length = 10

doc.recompute()
